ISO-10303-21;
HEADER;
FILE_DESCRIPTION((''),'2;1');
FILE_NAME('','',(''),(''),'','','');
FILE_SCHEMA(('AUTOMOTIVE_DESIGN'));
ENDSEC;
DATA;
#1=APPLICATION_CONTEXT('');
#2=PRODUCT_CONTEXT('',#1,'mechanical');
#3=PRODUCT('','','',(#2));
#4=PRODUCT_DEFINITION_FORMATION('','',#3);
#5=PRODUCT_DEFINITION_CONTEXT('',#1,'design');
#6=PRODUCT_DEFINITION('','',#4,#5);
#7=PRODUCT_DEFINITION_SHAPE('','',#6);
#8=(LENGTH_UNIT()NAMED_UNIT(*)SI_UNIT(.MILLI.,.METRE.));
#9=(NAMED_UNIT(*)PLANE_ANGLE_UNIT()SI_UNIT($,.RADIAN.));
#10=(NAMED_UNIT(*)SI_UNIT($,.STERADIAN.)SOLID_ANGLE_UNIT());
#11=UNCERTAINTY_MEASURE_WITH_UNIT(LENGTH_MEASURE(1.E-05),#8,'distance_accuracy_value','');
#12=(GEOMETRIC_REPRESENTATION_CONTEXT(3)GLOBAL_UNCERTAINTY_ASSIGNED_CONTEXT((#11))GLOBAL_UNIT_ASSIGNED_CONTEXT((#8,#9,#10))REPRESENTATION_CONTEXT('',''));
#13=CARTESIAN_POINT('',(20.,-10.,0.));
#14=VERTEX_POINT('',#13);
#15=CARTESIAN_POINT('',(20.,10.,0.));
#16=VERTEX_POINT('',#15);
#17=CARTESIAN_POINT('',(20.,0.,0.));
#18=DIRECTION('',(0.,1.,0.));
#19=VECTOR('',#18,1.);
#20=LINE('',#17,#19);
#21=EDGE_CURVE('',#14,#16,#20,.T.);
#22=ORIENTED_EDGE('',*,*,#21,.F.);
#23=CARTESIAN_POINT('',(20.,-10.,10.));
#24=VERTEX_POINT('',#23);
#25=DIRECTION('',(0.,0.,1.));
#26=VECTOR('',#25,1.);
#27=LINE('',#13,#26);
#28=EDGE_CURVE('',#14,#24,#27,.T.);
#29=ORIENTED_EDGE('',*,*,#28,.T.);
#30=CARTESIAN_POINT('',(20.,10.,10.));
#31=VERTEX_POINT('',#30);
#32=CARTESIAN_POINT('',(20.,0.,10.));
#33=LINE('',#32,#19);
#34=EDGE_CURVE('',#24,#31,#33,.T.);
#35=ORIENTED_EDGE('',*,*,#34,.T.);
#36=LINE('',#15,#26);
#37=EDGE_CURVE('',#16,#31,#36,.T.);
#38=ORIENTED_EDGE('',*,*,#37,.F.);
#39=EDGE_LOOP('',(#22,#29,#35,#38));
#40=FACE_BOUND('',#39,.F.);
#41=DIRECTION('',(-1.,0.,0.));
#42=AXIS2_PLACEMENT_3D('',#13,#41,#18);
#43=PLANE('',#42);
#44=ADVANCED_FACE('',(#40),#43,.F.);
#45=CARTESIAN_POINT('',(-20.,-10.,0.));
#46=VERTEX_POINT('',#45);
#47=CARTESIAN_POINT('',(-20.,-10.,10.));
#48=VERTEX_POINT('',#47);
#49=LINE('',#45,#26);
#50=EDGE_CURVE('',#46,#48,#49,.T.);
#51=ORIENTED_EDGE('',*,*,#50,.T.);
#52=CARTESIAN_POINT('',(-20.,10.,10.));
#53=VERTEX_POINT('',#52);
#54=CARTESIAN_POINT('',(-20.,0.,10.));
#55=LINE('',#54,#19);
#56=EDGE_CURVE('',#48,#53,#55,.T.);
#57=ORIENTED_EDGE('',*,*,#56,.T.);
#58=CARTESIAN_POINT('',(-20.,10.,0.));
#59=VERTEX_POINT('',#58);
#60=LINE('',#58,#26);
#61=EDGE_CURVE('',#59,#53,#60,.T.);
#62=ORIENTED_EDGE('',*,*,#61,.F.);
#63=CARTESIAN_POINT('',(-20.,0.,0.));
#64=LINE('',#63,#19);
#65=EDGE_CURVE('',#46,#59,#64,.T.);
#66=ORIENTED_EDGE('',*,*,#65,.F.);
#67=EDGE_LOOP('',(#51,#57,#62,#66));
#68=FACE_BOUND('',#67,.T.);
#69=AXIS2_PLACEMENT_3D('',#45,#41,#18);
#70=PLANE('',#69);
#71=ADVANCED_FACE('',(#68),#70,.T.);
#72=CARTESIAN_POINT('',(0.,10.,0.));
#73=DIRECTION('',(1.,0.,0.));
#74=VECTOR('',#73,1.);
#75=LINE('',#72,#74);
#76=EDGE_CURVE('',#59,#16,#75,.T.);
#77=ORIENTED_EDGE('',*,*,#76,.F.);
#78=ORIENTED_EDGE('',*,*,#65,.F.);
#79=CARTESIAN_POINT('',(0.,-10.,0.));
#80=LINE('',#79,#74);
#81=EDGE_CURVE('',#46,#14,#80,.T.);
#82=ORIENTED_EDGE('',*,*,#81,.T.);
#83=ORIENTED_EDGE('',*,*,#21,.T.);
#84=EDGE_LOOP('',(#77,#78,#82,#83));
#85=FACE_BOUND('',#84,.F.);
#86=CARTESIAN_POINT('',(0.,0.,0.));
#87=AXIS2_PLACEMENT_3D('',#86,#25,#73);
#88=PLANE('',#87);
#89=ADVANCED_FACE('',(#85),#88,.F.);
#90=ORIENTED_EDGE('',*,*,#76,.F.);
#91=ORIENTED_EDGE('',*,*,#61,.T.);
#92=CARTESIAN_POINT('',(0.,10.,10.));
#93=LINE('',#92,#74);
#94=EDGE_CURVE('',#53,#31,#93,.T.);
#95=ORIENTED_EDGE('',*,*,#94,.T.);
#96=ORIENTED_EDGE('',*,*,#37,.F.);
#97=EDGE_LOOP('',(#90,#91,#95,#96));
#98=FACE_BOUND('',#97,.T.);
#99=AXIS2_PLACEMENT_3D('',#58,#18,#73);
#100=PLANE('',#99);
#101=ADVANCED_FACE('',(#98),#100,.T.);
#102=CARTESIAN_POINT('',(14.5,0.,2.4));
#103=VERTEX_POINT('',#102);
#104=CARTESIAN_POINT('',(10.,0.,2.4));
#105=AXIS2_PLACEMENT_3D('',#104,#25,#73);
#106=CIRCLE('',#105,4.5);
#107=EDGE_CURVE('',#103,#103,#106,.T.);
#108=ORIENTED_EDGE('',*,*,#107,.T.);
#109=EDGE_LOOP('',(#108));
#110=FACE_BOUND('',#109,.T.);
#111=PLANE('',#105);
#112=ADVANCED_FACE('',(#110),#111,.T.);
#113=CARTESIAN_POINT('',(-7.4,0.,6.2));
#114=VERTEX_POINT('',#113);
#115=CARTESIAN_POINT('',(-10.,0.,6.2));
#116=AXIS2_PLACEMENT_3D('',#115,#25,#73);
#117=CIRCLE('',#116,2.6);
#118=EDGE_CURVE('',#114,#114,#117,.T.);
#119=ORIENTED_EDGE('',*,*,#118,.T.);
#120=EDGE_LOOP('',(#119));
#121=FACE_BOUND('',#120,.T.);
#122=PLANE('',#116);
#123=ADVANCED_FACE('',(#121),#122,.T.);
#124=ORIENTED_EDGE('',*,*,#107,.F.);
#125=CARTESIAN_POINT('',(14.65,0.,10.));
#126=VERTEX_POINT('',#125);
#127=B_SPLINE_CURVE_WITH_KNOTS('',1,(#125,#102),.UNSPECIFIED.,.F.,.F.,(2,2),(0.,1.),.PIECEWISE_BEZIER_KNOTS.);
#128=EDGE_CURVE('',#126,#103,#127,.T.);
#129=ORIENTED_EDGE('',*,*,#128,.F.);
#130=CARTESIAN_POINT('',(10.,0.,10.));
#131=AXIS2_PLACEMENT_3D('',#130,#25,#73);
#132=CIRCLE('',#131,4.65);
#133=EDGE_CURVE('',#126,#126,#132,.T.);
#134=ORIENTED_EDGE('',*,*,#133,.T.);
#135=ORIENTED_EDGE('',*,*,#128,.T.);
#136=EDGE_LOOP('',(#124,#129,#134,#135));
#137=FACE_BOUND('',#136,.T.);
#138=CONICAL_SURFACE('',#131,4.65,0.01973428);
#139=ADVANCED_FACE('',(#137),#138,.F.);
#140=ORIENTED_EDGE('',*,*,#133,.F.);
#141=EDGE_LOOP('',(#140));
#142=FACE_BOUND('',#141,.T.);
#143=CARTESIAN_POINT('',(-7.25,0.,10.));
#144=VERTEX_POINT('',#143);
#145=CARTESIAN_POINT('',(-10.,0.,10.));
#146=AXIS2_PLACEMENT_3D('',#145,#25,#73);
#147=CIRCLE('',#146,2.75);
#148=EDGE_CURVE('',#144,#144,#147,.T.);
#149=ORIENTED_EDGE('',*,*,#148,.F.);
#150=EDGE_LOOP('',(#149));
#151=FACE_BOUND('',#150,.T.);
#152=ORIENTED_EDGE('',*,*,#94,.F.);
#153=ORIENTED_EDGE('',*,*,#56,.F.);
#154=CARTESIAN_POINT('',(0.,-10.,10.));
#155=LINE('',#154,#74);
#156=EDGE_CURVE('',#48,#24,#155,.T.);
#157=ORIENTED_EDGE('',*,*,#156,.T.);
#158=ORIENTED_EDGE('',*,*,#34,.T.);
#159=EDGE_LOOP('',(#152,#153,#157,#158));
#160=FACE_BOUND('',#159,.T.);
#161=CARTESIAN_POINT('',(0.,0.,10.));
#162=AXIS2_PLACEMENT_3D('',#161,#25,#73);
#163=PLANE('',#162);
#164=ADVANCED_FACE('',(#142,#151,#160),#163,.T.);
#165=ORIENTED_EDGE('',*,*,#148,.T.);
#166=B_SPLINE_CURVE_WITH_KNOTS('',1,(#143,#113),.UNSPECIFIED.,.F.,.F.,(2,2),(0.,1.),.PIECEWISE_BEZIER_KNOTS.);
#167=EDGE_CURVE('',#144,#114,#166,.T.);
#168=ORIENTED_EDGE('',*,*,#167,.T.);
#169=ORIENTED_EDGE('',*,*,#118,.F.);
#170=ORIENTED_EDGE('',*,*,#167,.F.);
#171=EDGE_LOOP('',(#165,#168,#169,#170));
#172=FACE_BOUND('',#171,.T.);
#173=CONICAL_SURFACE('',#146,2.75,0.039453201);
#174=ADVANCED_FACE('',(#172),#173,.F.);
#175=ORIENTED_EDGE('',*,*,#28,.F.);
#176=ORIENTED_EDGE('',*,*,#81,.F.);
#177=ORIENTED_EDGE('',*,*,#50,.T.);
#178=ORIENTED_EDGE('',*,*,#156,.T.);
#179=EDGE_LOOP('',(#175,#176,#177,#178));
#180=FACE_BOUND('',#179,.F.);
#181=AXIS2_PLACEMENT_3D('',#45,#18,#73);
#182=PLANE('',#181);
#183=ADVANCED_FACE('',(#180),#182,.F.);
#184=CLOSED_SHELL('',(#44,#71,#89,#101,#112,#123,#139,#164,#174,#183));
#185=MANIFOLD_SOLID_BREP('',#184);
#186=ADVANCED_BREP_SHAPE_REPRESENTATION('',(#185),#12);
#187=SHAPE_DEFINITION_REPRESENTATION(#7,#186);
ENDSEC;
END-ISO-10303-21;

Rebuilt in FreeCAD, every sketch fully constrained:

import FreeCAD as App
import Part
import Sketcher


def add_polygon(sketch, points):
    """Adds a closed chain of lines whose ends are joined by coincident constraints."""
    first, n = sketch.GeometryCount, len(points)
    for a, b in zip(points, points[1:] + points[:1]):
        sketch.addGeometry(Part.LineSegment(App.Vector(*a, 0), App.Vector(*b, 0)), False)
    for i in range(n):
        sketch.addConstraint(Sketcher.Constraint("Coincident", first + i, 2, first + (i + 1) % n, 1))

doc = App.newDocument("Part")
body = doc.addObject("PartDesign::Body", "Body")

# Sketch on XY plane
sketch1 = body.newObject("Sketcher::SketchObject", "Sketch")
sketch1.AttachmentSupport = (doc.getObject("XY_Plane"), [""])
sketch1.MapMode = "FlatFace"
add_polygon(sketch1, [(-20, 10), (-20, -10), (20, -10), (20, 10)])  # lines 0-3
sketch1.addConstraint([
    Sketcher.Constraint("Vertical", 0),
    Sketcher.Constraint("Horizontal", 1),
    Sketcher.Constraint("Vertical", 2),
    Sketcher.Constraint("Horizontal", 3),
    Sketcher.Constraint("Symmetric", 0, 2, 2, 2, -1, 1),
    Sketcher.Constraint("DistanceX", 1, 1, 1, 2, 40.0),
    Sketcher.Constraint("DistanceY", 0, 2, 0, 1, 20.0),
])
pad1 = body.newObject("PartDesign::Pad", "Pad")
pad1.Profile = sketch1
pad1.Length = 10

# Sketch on XY plane
sketch2 = body.newObject("Sketcher::SketchObject", "Sketch001")
sketch2.AttachmentSupport = (doc.getObject("XY_Plane"), [""])
sketch2.MapMode = "FlatFace"
sketch2.AttachmentOffset = App.Placement(App.Vector(0, 0, 10), App.Rotation())
sketch2.addGeometry(Part.Circle(App.Vector(-10, 0, 0), App.Vector(0, 0, 1), 2.8), False)
sketch2.addConstraint([
    Sketcher.Constraint("PointOnObject", 0, 3, -1),
    Sketcher.Constraint("Diameter", 0, 5.5),
    Sketcher.Constraint("DistanceX", 0, 3, -1, 1, 10.0),
])

# Sketch on XY plane
sketch3 = body.newObject("Sketcher::SketchObject", "Sketch002")
sketch3.AttachmentSupport = (doc.getObject("XY_Plane"), [""])
sketch3.MapMode = "FlatFace"
sketch3.AttachmentOffset = App.Placement(App.Vector(0, 0, 6.2), App.Rotation())
sketch3.addGeometry(Part.Circle(App.Vector(-10, 0, 0), App.Vector(0, 0, 1), 2.6), False)
sketch3.addConstraint([
    Sketcher.Constraint("PointOnObject", 0, 3, -1),
    Sketcher.Constraint("Diameter", 0, 5.2),
    Sketcher.Constraint("DistanceX", 0, 3, -1, 1, 10.0),
])

subtractiveloft = body.newObject("PartDesign::SubtractiveLoft", "SubtractiveLoft")
subtractiveloft.Profile = sketch2
subtractiveloft.Sections = [sketch3]

# Sketch on XY plane
sketch4 = body.newObject("Sketcher::SketchObject", "Sketch003")
sketch4.AttachmentSupport = (doc.getObject("XY_Plane"), [""])
sketch4.MapMode = "FlatFace"
sketch4.AttachmentOffset = App.Placement(App.Vector(0, 0, 10), App.Rotation())
sketch4.addGeometry(Part.Circle(App.Vector(10, 0, 0), App.Vector(0, 0, 1), 4.7), False)
sketch4.addConstraint([
    Sketcher.Constraint("PointOnObject", 0, 3, -1),
    Sketcher.Constraint("Diameter", 0, 9.3),
    Sketcher.Constraint("DistanceX", -1, 1, 0, 3, 10.0),
])

# Sketch on XY plane
sketch5 = body.newObject("Sketcher::SketchObject", "Sketch004")
sketch5.AttachmentSupport = (doc.getObject("XY_Plane"), [""])
sketch5.MapMode = "FlatFace"
sketch5.AttachmentOffset = App.Placement(App.Vector(0, 0, 2.4), App.Rotation())
sketch5.addGeometry(Part.Circle(App.Vector(10, 0, 0), App.Vector(0, 0, 1), 4.5), False)
sketch5.addConstraint([
    Sketcher.Constraint("PointOnObject", 0, 3, -1),
    Sketcher.Constraint("Diameter", 0, 9.0),
    Sketcher.Constraint("DistanceX", -1, 1, 0, 3, 10.0),
])

subtractiveloft2 = body.newObject("PartDesign::SubtractiveLoft", "SubtractiveLoft001")
subtractiveloft2.Profile = sketch4
subtractiveloft2.Sections = [sketch5]

doc.recompute()
